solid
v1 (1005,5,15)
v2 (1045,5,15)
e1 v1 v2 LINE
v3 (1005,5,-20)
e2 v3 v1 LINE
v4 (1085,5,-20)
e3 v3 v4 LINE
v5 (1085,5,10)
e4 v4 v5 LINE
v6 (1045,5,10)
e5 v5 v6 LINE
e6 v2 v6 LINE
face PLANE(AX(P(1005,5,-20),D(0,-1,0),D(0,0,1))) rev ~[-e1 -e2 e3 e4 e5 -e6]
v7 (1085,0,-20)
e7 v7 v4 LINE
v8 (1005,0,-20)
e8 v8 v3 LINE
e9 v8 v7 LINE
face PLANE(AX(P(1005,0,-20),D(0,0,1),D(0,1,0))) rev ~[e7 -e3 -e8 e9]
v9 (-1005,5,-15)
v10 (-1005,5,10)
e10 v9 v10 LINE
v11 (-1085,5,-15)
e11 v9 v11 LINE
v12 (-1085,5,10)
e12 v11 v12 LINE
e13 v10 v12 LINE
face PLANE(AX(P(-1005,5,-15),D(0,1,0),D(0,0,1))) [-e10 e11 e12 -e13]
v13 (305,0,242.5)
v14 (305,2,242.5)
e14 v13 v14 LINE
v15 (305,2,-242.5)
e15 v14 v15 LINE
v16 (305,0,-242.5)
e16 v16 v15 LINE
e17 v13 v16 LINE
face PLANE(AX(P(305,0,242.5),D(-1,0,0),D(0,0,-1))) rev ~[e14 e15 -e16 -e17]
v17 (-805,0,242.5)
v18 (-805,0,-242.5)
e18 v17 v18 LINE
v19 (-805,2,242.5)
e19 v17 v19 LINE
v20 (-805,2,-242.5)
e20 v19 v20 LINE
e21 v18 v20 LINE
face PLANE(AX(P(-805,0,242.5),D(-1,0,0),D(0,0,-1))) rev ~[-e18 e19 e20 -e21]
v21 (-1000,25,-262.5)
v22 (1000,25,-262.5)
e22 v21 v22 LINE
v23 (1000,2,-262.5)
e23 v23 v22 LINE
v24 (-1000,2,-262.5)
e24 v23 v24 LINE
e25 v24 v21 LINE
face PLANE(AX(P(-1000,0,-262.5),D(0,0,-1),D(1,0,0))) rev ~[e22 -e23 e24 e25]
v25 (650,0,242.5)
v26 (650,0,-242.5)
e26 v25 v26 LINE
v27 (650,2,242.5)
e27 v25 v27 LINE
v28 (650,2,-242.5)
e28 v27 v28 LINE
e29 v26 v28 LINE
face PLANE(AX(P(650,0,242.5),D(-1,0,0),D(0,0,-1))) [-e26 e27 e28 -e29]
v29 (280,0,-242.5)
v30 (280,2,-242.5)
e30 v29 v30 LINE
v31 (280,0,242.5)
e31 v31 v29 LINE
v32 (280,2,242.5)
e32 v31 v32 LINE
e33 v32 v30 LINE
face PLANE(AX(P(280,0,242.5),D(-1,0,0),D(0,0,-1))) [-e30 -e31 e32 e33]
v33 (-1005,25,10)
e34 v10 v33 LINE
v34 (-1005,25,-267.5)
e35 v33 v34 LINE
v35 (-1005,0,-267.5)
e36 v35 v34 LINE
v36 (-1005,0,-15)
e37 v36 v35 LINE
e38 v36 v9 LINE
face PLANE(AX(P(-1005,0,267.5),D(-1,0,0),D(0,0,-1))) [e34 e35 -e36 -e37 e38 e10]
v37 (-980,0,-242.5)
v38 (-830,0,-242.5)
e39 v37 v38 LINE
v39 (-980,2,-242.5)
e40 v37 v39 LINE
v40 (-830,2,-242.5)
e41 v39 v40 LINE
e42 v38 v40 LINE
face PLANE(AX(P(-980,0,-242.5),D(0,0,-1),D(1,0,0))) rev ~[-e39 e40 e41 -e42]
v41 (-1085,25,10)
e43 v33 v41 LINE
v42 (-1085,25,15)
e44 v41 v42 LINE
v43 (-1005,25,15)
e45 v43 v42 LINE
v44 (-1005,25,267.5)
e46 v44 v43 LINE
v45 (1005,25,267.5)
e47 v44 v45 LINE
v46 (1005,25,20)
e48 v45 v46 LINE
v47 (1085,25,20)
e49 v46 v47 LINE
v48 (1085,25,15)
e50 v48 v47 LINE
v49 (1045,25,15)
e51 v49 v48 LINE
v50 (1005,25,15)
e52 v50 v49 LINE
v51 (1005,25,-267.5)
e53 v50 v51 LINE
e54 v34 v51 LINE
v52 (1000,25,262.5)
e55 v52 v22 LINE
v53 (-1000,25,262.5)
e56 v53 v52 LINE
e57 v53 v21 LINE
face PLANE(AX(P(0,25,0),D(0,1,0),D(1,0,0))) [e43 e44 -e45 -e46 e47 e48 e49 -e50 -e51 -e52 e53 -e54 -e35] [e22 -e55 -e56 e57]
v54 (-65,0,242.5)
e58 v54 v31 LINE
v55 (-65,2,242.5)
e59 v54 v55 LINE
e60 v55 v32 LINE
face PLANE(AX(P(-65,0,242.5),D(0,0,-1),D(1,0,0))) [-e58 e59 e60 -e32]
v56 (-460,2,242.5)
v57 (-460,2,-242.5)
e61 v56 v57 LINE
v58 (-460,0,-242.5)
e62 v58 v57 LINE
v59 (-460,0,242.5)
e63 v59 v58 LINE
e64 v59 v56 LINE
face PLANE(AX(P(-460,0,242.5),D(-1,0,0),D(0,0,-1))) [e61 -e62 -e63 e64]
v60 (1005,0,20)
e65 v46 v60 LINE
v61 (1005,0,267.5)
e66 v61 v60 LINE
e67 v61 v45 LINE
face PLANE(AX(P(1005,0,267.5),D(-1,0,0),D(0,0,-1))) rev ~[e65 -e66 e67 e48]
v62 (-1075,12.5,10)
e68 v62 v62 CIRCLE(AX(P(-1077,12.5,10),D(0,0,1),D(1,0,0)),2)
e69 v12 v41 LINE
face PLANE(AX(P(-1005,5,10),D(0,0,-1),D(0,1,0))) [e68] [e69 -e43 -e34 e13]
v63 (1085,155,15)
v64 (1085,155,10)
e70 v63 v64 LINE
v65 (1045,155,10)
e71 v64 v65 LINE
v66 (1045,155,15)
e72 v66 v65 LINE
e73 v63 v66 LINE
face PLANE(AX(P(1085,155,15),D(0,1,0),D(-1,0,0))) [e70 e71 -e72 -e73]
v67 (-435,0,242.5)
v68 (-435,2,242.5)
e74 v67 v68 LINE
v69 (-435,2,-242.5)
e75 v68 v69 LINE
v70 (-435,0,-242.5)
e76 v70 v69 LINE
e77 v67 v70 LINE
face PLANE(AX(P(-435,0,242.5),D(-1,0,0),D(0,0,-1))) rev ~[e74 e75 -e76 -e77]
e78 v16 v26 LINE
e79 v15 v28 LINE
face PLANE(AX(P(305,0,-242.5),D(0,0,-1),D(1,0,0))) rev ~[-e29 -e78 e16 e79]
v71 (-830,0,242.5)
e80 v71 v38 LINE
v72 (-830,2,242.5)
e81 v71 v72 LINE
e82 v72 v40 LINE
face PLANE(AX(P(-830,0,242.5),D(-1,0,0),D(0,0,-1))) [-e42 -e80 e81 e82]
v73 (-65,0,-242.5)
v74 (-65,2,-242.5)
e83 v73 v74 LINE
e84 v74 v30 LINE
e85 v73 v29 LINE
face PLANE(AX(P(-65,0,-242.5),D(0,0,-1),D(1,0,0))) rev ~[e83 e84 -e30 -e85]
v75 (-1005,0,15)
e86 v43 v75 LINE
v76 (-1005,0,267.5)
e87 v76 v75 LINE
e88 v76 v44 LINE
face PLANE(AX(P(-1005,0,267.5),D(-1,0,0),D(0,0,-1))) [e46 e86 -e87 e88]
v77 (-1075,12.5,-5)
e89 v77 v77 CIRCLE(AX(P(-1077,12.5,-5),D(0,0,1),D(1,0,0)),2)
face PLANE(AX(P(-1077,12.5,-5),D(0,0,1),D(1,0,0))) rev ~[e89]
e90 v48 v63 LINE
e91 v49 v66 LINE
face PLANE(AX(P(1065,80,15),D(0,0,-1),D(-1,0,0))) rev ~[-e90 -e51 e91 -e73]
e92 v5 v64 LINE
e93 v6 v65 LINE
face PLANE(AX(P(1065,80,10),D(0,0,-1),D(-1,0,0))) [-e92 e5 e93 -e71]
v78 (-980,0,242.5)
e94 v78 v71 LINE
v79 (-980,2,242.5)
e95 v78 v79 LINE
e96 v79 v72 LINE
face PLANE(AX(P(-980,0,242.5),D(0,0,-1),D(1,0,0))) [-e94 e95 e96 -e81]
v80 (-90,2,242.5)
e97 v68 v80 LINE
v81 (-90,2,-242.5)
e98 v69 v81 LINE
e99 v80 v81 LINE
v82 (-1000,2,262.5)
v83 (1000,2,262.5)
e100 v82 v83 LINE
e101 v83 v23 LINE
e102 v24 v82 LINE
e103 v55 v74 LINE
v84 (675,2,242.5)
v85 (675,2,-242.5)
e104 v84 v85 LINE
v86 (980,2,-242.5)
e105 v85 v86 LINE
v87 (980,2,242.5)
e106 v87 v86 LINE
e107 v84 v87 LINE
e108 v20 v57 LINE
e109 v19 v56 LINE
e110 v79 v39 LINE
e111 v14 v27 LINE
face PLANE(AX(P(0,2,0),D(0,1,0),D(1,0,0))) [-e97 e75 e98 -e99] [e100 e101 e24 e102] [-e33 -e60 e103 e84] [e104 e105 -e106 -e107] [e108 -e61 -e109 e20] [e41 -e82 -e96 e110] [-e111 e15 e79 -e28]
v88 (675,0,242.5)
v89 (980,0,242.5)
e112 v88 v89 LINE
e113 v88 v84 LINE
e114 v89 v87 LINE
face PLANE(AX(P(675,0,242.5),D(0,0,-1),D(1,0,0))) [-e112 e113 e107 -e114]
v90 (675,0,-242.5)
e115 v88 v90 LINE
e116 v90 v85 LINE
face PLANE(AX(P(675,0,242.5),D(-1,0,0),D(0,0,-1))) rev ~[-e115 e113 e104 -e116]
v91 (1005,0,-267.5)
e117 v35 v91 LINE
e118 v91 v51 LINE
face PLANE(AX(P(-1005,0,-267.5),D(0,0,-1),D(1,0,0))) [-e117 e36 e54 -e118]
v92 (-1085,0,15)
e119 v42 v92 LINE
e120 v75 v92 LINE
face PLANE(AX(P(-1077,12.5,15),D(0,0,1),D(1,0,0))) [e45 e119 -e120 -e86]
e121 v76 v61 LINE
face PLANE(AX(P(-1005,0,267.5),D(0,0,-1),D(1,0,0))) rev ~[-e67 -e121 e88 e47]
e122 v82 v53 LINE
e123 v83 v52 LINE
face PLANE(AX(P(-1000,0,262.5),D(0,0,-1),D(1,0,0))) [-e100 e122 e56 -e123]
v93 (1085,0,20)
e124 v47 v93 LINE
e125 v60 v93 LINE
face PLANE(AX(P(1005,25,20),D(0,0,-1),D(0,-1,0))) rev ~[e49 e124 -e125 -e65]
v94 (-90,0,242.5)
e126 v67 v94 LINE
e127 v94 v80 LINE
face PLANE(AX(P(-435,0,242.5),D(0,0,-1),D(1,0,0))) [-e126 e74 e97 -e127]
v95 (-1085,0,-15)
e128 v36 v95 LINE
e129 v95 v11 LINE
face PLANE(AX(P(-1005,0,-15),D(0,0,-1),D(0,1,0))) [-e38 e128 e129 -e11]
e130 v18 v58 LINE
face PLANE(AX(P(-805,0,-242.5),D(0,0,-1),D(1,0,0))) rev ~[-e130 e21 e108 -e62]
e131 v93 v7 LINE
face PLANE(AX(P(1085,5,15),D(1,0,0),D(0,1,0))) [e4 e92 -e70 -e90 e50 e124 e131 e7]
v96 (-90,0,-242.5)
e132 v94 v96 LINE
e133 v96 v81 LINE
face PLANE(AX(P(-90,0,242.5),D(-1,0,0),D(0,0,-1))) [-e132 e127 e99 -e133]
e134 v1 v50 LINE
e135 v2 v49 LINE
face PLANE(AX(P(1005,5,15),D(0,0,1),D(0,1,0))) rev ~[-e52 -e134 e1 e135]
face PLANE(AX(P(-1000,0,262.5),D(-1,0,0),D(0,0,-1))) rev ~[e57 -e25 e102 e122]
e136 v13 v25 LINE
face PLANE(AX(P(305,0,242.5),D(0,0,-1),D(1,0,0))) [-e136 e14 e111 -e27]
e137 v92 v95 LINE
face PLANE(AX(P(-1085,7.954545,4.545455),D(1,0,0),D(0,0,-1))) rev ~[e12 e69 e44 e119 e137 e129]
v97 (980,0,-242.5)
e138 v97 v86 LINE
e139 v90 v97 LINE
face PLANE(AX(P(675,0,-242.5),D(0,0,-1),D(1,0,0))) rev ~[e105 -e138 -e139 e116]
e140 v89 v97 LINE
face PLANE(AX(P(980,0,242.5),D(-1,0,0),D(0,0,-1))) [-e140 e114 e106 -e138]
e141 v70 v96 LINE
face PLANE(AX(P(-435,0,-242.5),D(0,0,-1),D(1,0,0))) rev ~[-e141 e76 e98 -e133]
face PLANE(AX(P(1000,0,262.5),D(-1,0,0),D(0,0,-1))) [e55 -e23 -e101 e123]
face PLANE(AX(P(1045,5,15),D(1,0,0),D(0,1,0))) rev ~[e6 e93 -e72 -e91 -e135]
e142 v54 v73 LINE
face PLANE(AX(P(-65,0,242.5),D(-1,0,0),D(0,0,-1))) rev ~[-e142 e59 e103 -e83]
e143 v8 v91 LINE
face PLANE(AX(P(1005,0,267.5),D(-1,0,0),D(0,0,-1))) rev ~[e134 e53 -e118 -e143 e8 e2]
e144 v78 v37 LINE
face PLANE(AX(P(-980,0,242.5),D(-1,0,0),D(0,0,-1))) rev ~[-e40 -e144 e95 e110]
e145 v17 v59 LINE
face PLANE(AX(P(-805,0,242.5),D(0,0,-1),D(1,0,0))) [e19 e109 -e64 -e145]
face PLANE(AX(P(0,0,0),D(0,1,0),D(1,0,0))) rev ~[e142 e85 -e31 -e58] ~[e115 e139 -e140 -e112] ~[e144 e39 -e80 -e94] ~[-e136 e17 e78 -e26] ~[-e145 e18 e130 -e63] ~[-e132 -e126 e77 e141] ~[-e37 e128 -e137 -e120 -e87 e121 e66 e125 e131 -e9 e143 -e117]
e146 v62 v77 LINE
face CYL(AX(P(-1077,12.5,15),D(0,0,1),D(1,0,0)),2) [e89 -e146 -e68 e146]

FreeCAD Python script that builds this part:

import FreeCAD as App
import Part
import Sketcher


def add_polygon(sketch, points):
    """Adds a closed chain of lines whose ends are joined by coincident constraints."""
    first, n = sketch.GeometryCount, len(points)
    for a, b in zip(points, points[1:] + points[:1]):
        sketch.addGeometry(Part.LineSegment(App.Vector(*a, 0), App.Vector(*b, 0)), False)
    for i in range(n):
        sketch.addConstraint(Sketcher.Constraint("Coincident", first + i, 2, first + (i + 1) % n, 1))

doc = App.newDocument("Part")
body = doc.addObject("PartDesign::Body", "Body")

sketch1 = doc.addObject("Sketcher::SketchObject", "Sketch")
body.addObject(sketch1)
sketch1.AttachmentSupport = (doc.XZ_Plane, [""])
sketch1.MapMode = "FlatFace"
add_polygon(sketch1, [(1000, 262.5), (1000, -262.5), (-1000, -262.5), (-1000, 262.5)])
add_polygon(sketch1, [(-830, 242.5), (-980, 242.5), (-980, -242.5), (-830, -242.5)])
add_polygon(sketch1, [(-460, 242.5), (-805, 242.5), (-805, -242.5), (-460, -242.5)])
add_polygon(sketch1, [(-90, 242.5), (-435, 242.5), (-435, -242.5), (-90, -242.5)])
add_polygon(sketch1, [(280, 242.5), (-65, 242.5), (-65, -242.5), (280, -242.5)])
add_polygon(sketch1, [(650, 242.5), (305, 242.5), (305, -242.5), (650, -242.5)])
add_polygon(sketch1, [(980, 242.5), (675, 242.5), (675, -242.5), (980, -242.5)])
sketch1.addConstraint(Sketcher.Constraint("Vertical", 0))
sketch1.addConstraint(Sketcher.Constraint("Horizontal", 1))
sketch1.addConstraint(Sketcher.Constraint("Vertical", 2))
sketch1.addConstraint(Sketcher.Constraint("Horizontal", 3))
sketch1.addConstraint(Sketcher.Constraint("Horizontal", 4))
sketch1.addConstraint(Sketcher.Constraint("Vertical", 5))
sketch1.addConstraint(Sketcher.Constraint("Horizontal", 6))
sketch1.addConstraint(Sketcher.Constraint("Vertical", 7))
sketch1.addConstraint(Sketcher.Constraint("Horizontal", 8))
sketch1.addConstraint(Sketcher.Constraint("Vertical", 9))
sketch1.addConstraint(Sketcher.Constraint("Horizontal", 10))
sketch1.addConstraint(Sketcher.Constraint("Vertical", 11))
sketch1.addConstraint(Sketcher.Constraint("Horizontal", 12))
sketch1.addConstraint(Sketcher.Constraint("Vertical", 13))
sketch1.addConstraint(Sketcher.Constraint("Horizontal", 14))
sketch1.addConstraint(Sketcher.Constraint("Vertical", 15))
sketch1.addConstraint(Sketcher.Constraint("Horizontal", 16))
sketch1.addConstraint(Sketcher.Constraint("Vertical", 17))
sketch1.addConstraint(Sketcher.Constraint("Horizontal", 18))
sketch1.addConstraint(Sketcher.Constraint("Vertical", 19))
sketch1.addConstraint(Sketcher.Constraint("Horizontal", 20))
sketch1.addConstraint(Sketcher.Constraint("Vertical", 21))
sketch1.addConstraint(Sketcher.Constraint("Horizontal", 22))
sketch1.addConstraint(Sketcher.Constraint("Vertical", 23))
sketch1.addConstraint(Sketcher.Constraint("Horizontal", 24))
sketch1.addConstraint(Sketcher.Constraint("Vertical", 25))
sketch1.addConstraint(Sketcher.Constraint("Horizontal", 26))
sketch1.addConstraint(Sketcher.Constraint("Vertical", 27))
sketch1.addConstraint(Sketcher.Constraint("Symmetric", 0, 2, 2, 2, -1, 1))
sketch1.addConstraint(Sketcher.Constraint("Symmetric", 4, 2, 26, 2, -1, 1))
sketch1.addConstraint(Sketcher.Constraint("Horizontal", 7, 2, 8, 2))
sketch1.addConstraint(Sketcher.Constraint("Horizontal", 6, 2, 9, 2))
sketch1.addConstraint(Sketcher.Constraint("Horizontal", 11, 2, 12, 2))
sketch1.addConstraint(Sketcher.Constraint("Horizontal", 10, 2, 13, 2))
sketch1.addConstraint(Sketcher.Constraint("Horizontal", 15, 2, 16, 2))
sketch1.addConstraint(Sketcher.Constraint("Horizontal", 14, 2, 17, 2))
sketch1.addConstraint(Sketcher.Constraint("Horizontal", 19, 2, 20, 2))
sketch1.addConstraint(Sketcher.Constraint("Horizontal", 18, 2, 21, 2))
sketch1.addConstraint(Sketcher.Constraint("Horizontal", 23, 2, 24, 2))
sketch1.addConstraint(Sketcher.Constraint("Horizontal", 22, 2, 25, 2))
sketch1.addConstraint(Sketcher.Constraint("Equal", 10, 12))
sketch1.addConstraint(Sketcher.Constraint("Equal", 14, 16))
sketch1.addConstraint(Sketcher.Constraint("Equal", 18, 20))
sketch1.addConstraint(Sketcher.Constraint("DistanceX", 1, 2, 1, 1, 2000.0))
sketch1.addConstraint(Sketcher.Constraint("DistanceX", 4, 2, 4, 1, 150.0))
sketch1.addConstraint(Sketcher.Constraint("DistanceX", 8, 2, 8, 1, 345.0))
sketch1.addConstraint(Sketcher.Constraint("DistanceX", 24, 2, 24, 1, 305.0))
sketch1.addConstraint(Sketcher.Constraint("DistanceY", 0, 2, 0, 1, 525.0))
sketch1.addConstraint(Sketcher.Constraint("DistanceY", 5, 2, 5, 1, 485.0))
sketch1.addConstraint(Sketcher.Constraint("DistanceX", 4, 2, -1, 1, 980.0))
sketch1.addConstraint(Sketcher.Constraint("DistanceX", 8, 2, -1, 1, 805.0))
sketch1.addConstraint(Sketcher.Constraint("DistanceX", 12, 2, -1, 1, 435.0))
sketch1.addConstraint(Sketcher.Constraint("DistanceX", 16, 2, -1, 1, 65.0))
sketch1.addConstraint(Sketcher.Constraint("DistanceX", -1, 1, 20, 2, 305.0))
pad1 = doc.addObject("PartDesign::Pad", "Pad")
body.addObject(pad1)
pad1.Profile = sketch1
pad1.Length = 2
pad1.Reversed = True

sketch2 = doc.addObject("Sketcher::SketchObject", "Sketch001")
body.addObject(sketch2)
sketch2.AttachmentSupport = (doc.XZ_Plane, [""])
sketch2.MapMode = "FlatFace"
add_polygon(sketch2, [(-1005, -267.5), (-1005, 267.5), (1005, 267.5), (1005, -267.5)])
add_polygon(sketch2, [(1000, 262.5), (-1000, 262.5), (-1000, -262.5), (1000, -262.5)])
sketch2.addConstraint(Sketcher.Constraint("Vertical", 0))
sketch2.addConstraint(Sketcher.Constraint("Horizontal", 1))
sketch2.addConstraint(Sketcher.Constraint("Vertical", 2))
sketch2.addConstraint(Sketcher.Constraint("Horizontal", 3))
sketch2.addConstraint(Sketcher.Constraint("Horizontal", 4))
sketch2.addConstraint(Sketcher.Constraint("Vertical", 5))
sketch2.addConstraint(Sketcher.Constraint("Horizontal", 6))
sketch2.addConstraint(Sketcher.Constraint("Vertical", 7))
sketch2.addConstraint(Sketcher.Constraint("Symmetric", 0, 2, 2, 2, -1, 1))
sketch2.addConstraint(Sketcher.Constraint("Symmetric", 4, 2, 6, 2, -1, 1))
sketch2.addConstraint(Sketcher.Constraint("DistanceX", 1, 1, 1, 2, 2010.0))
sketch2.addConstraint(Sketcher.Constraint("DistanceX", 4, 2, 4, 1, 2000.0))
sketch2.addConstraint(Sketcher.Constraint("DistanceY", 0, 1, 0, 2, 535.0))
sketch2.addConstraint(Sketcher.Constraint("DistanceY", 5, 2, 5, 1, 525.0))
pad2 = doc.addObject("PartDesign::Pad", "Pad001")
body.addObject(pad2)
pad2.Profile = sketch2
pad2.Length = 25
pad2.Reversed = True

sketch3 = doc.addObject("Sketcher::SketchObject", "Sketch002")
body.addObject(sketch3)
sketch3.AttachmentSupport = (doc.YZ_Plane, [""])
sketch3.MapMode = "FlatFace"
sketch3.AttachmentOffset = App.Placement(App.Vector(0, 0, 1005), App.Rotation())
add_polygon(sketch3, [(25, 20), (0, 20), (0, -20), (5, -20), (5, 15), (25, 15)])
sketch3.addConstraint(Sketcher.Constraint("Horizontal", 0))
sketch3.addConstraint(Sketcher.Constraint("Vertical", 1))
sketch3.addConstraint(Sketcher.Constraint("Horizontal", 2))
sketch3.addConstraint(Sketcher.Constraint("Vertical", 3))
sketch3.addConstraint(Sketcher.Constraint("Horizontal", 4))
sketch3.addConstraint(Sketcher.Constraint("Vertical", 5))
sketch3.addConstraint(Sketcher.Constraint("Symmetric", 0, 2, 1, 2, -1, 1))
sketch3.addConstraint(Sketcher.Constraint("Equal", 2, 5))
sketch3.addConstraint(Sketcher.Constraint("DistanceX", 0, 2, 0, 1, 25.0))
sketch3.addConstraint(Sketcher.Constraint("DistanceX", 2, 1, 2, 2, 5.0))
sketch3.addConstraint(Sketcher.Constraint("DistanceY", 1, 2, 1, 1, 40.0))
pad3 = doc.addObject("PartDesign::Pad", "Pad002")
body.addObject(pad3)
pad3.Profile = sketch3
pad3.Length = 80

sketch4 = doc.addObject("Sketcher::SketchObject", "Sketch003")
body.addObject(sketch4)
sketch4.AttachmentSupport = (doc.XY_Plane, [""])
sketch4.MapMode = "FlatFace"
sketch4.AttachmentOffset = App.Placement(App.Vector(0, 0, 15), App.Rotation())
add_polygon(sketch4, [(1085, 155), (1085, 5), (1045, 5), (1045, 155)])
sketch4.addConstraint(Sketcher.Constraint("Vertical", 0))
sketch4.addConstraint(Sketcher.Constraint("Horizontal", 1))
sketch4.addConstraint(Sketcher.Constraint("Vertical", 2))
sketch4.addConstraint(Sketcher.Constraint("Horizontal", 3))
sketch4.addConstraint(Sketcher.Constraint("DistanceX", 1, 2, 1, 1, 40.0))
sketch4.addConstraint(Sketcher.Constraint("DistanceY", 0, 2, 0, 1, 150.0))
sketch4.addConstraint(Sketcher.Constraint("DistanceX", -1, 1, 0, 2, 1085.0))
sketch4.addConstraint(Sketcher.Constraint("DistanceY", -1, 1, 0, 2, 5.0))
pad4 = doc.addObject("PartDesign::Pad", "Pad003")
body.addObject(pad4)
pad4.Profile = sketch4
pad4.Length = 5
pad4.Reversed = True

sketch5 = doc.addObject("Sketcher::SketchObject", "Sketch004")
body.addObject(sketch5)
sketch5.AttachmentSupport = (doc.YZ_Plane, [""])
sketch5.MapMode = "FlatFace"
sketch5.AttachmentOffset = App.Placement(App.Vector(0, 0, -1005), App.Rotation())
add_polygon(sketch5, [(0, 15), (25, 15), (25, 10), (5, 10), (5, -15), (0, -15)])
sketch5.addConstraint(Sketcher.Constraint("Horizontal", 0))
sketch5.addConstraint(Sketcher.Constraint("Vertical", 1))
sketch5.addConstraint(Sketcher.Constraint("Horizontal", 2))
sketch5.addConstraint(Sketcher.Constraint("Vertical", 3))
sketch5.addConstraint(Sketcher.Constraint("Horizontal", 4))
sketch5.addConstraint(Sketcher.Constraint("Vertical", 5))
sketch5.addConstraint(Sketcher.Constraint("Symmetric", 4, 2, 5, 2, -1, 1))
sketch5.addConstraint(Sketcher.Constraint("Equal", 4, 1))
sketch5.addConstraint(Sketcher.Constraint("Equal", 0, 3))
sketch5.addConstraint(Sketcher.Constraint("DistanceX", 0, 1, 0, 2, 25.0))
sketch5.addConstraint(Sketcher.Constraint("DistanceX", 2, 2, 2, 1, 20.0))
pad5 = doc.addObject("PartDesign::Pad", "Pad004")
body.addObject(pad5)
pad5.Profile = sketch5
pad5.Length = 80
pad5.Reversed = True

sketch6 = doc.addObject("Sketcher::SketchObject", "Sketch005")
body.addObject(sketch6)
sketch6.AttachmentSupport = (doc.XY_Plane, [""])
sketch6.MapMode = "FlatFace"
sketch6.AttachmentOffset = App.Placement(App.Vector(0, 0, 15), App.Rotation())
sketch6.addGeometry(Part.Circle(App.Vector(-1077, 12.5, 0), App.Vector(0, 0, 1), 2), False)
sketch6.addConstraint(Sketcher.Constraint("Diameter", 0, 4.0))
sketch6.addConstraint(Sketcher.Constraint("DistanceX", 0, 3, -1, 1, 1077.0))
sketch6.addConstraint(Sketcher.Constraint("DistanceY", -1, 1, 0, 3, 12.5))
pad6 = doc.addObject("PartDesign::Pad", "Pad005")
body.addObject(pad6)
pad6.Profile = sketch6
pad6.Length = 20
pad6.Reversed = True

doc.recompute()
